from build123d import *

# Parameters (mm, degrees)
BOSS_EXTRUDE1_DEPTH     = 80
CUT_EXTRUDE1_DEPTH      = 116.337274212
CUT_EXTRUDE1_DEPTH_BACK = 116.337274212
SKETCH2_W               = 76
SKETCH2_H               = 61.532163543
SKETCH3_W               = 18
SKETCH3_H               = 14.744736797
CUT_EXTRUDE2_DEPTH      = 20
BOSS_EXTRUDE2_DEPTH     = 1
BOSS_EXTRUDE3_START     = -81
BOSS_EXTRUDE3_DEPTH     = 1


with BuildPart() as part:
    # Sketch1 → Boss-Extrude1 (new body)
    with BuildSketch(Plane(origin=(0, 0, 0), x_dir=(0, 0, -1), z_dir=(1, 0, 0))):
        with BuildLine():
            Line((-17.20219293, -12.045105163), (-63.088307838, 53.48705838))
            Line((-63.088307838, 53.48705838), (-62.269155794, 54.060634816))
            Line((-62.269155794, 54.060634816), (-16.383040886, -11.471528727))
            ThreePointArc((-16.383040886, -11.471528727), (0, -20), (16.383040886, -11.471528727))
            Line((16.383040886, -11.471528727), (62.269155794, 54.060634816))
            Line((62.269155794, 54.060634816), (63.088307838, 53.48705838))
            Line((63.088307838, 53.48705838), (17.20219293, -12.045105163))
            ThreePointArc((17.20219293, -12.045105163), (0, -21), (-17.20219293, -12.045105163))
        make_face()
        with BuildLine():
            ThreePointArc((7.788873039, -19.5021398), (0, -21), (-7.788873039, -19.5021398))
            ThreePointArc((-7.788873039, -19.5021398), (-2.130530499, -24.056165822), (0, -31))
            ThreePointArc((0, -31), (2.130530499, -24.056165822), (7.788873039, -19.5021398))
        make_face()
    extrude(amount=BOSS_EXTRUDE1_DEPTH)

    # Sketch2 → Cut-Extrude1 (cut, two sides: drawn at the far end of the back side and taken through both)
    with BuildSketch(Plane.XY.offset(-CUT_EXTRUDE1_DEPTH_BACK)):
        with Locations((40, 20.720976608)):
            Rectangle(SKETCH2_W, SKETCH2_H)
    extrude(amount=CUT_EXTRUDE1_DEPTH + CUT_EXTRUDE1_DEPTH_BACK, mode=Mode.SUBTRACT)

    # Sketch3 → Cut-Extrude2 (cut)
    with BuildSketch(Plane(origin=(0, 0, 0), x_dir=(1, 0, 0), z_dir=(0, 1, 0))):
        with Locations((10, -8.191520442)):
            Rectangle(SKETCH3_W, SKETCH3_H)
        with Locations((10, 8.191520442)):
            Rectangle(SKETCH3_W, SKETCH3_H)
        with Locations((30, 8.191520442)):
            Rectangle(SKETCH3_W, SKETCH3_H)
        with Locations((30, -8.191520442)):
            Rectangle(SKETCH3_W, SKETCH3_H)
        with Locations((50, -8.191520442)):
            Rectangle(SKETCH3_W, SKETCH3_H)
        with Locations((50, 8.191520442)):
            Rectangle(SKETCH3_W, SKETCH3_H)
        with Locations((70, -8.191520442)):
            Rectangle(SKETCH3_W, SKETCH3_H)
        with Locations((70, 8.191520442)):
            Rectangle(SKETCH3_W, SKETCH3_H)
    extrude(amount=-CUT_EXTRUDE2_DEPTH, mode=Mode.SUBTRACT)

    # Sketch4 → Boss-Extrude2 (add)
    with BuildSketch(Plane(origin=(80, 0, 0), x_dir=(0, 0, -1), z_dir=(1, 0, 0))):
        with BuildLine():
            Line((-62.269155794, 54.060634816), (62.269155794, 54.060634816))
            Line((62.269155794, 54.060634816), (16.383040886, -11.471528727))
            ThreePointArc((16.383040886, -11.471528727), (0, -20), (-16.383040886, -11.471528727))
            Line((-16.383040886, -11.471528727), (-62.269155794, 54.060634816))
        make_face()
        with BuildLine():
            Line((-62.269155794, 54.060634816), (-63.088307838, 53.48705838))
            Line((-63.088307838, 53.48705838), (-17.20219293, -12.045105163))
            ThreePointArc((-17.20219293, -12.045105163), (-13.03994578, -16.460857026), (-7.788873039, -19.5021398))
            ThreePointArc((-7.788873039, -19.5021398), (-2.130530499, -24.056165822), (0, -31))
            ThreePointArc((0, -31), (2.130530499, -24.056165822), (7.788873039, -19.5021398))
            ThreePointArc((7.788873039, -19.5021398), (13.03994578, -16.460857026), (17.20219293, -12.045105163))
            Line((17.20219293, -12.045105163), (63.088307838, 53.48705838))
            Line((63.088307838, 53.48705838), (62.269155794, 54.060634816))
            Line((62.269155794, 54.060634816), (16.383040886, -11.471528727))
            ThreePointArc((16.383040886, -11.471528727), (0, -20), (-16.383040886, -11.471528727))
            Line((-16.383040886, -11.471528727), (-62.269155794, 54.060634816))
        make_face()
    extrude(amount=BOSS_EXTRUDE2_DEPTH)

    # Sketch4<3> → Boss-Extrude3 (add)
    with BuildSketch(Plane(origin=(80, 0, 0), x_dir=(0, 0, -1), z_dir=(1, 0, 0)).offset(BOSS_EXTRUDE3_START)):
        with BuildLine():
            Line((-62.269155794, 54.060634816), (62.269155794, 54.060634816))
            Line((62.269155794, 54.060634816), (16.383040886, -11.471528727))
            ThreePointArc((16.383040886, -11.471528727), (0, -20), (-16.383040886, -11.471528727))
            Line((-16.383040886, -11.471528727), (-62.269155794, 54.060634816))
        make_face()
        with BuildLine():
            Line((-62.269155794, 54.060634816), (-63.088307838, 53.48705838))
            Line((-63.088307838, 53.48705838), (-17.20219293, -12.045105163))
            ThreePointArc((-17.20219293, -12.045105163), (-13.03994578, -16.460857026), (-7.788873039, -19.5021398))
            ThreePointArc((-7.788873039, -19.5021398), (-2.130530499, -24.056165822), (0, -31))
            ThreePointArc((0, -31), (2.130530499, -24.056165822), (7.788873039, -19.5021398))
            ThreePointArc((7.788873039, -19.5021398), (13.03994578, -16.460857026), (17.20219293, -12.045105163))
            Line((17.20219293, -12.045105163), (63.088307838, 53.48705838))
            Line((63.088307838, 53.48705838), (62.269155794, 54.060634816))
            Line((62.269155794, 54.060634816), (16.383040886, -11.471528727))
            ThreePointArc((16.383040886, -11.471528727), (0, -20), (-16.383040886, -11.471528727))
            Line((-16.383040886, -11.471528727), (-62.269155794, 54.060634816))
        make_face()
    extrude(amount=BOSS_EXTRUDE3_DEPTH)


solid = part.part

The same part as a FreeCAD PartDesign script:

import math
import FreeCAD as App
import Part
import Sketcher
Q = App.Units.Quantity


def add_polygon(sketch, points):
    """Adds a closed chain of lines whose ends are joined by coincident constraints."""
    first, n = sketch.GeometryCount, len(points)
    for a, b in zip(points, points[1:] + points[:1]):
        sketch.addGeometry(Part.LineSegment(App.Vector(*a, 0), App.Vector(*b, 0)), False)
    for i in range(n):
        sketch.addConstraint(Sketcher.Constraint("Coincident", first + i, 2, first + (i + 1) % n, 1))

doc = App.newDocument("Part")
params = doc.addObject("Spreadsheet::Sheet", "Params")
for row, (alias, value) in enumerate([
    ("sketch1_radius", "21 mm"),
    ("sketch1_radius2", "20 mm"),
    ("sketch1_length", "80 mm"),
    ("pad1_length", "80 mm"),
    ("sketch2_width", "76 mm"),
    ("sketch3_width", "18 mm"),
    ("pocket2_length", "20 mm"),
    ("sketch4_radius", "21 mm"),
    ("sketch4_length", "1 mm"),
    ("sketch4_length2", "80 mm"),
    ("pad2_length", "1 mm"),
    ("sketch5_radius", "21 mm"),
    ("sketch5_length", "1 mm"),
    ("sketch5_length2", "80 mm"),
    ("pad3_length", "1 mm"),
], start=1):
    params.set(f"A{row}", alias)
    params.set(f"B{row}", "=" + value)
    params.setAlias(f"B{row}", alias)

body = doc.addObject("PartDesign::Body", "Body")

sketch1 = body.newObject("Sketcher::SketchObject", "Sketch")
sketch1.AttachmentSupport = (doc.getObject("YZ_Plane"), [""])
sketch1.MapMode = "FlatFace"
sketch1.addGeometry([
    Part.LineSegment(App.Vector(53.5, 63.1, 0), App.Vector(-12, 17.2, 0)),
    Part.ArcOfCircle(Part.Circle(App.Vector(0, 0, 0), App.Vector(0, 0, 1), 21), math.radians(125), math.radians(158)),
    Part.ArcOfCircle(Part.Circle(App.Vector(-31, 12.4, 0), App.Vector(0, 0, 1), 12.4), math.radians(-90), math.radians(-22)),
    Part.ArcOfCircle(Part.Circle(App.Vector(-31, -12.4, 0), App.Vector(0, 0, 1), 12.4), math.radians(22), math.radians(90)),
    Part.ArcOfCircle(Part.Circle(App.Vector(0, 0, 0), App.Vector(0, 0, 1), 21), math.radians(-158), math.radians(-125)),
    Part.LineSegment(App.Vector(-12, -17.2, 0), App.Vector(53.5, -63.1, 0)),
    Part.LineSegment(App.Vector(53.5, -63.1, 0), App.Vector(54.1, -62.3, 0)),
    Part.LineSegment(App.Vector(54.1, -62.3, 0), App.Vector(-11.5, -16.4, 0)),
    Part.ArcOfCircle(Part.Circle(App.Vector(0, 0, 0), App.Vector(0, 0, 1), 20), math.radians(125), math.radians(235)),
    Part.LineSegment(App.Vector(-11.5, 16.4, 0), App.Vector(54.1, 62.3, 0)),
    Part.LineSegment(App.Vector(54.1, 62.3, 0), App.Vector(53.5, 63.1, 0)),
], False)
sketch1.addConstraint([
    Sketcher.Constraint("Tangent", 0, 2, 1, 1),
    Sketcher.Constraint("Tangent", 1, 2, 2, 2),
    Sketcher.Constraint("Tangent", 2, 1, 3, 2),
    Sketcher.Constraint("Tangent", 3, 1, 4, 1),
    Sketcher.Constraint("Tangent", 4, 2, 5, 1),
    Sketcher.Constraint("Coincident", 5, 2, 6, 1),
    Sketcher.Constraint("Coincident", 6, 2, 7, 1),
    Sketcher.Constraint("Tangent", 7, 2, 8, 2),
    Sketcher.Constraint("Tangent", 8, 1, 9, 1),
    Sketcher.Constraint("Coincident", 9, 2, 10, 1),
    Sketcher.Constraint("Coincident", 10, 2, 0, 1),
    Sketcher.Constraint("Coincident", 1, 3, -1, 1),
    Sketcher.Constraint("Coincident", 4, 3, -1, 1),
    Sketcher.Constraint("Coincident", 8, 3, -1, 1),
    Sketcher.Constraint("Equal", 2, 3),
    Sketcher.Constraint("Equal", 1, 4),
    Sketcher.Constraint("Symmetric", 6, 2, 9, 2, -1),
    Sketcher.Constraint("Symmetric", 5, 2, 10, 2, -1),
    Sketcher.Constraint("PointOnObject", 2, 1, -1),
    Sketcher.Constraint("Perpendicular", 5, 6),
    Sketcher.Constraint("Perpendicular", 6, 7),
    Sketcher.Constraint("Radius", 1, 21.0),
    Sketcher.Constraint("Radius", 8, 20.0),
    Sketcher.Constraint("Angle", 0, Q("-145 deg")),
    Sketcher.Constraint("Distance", 0, 80.0),
    Sketcher.Constraint("DistanceX", 2, 3, -1, 1, 31.0),
])
sketch1.setExpression("Constraints[21]", "Params.sketch1_radius")
sketch1.setExpression("Constraints[22]", "Params.sketch1_radius2")
sketch1.setExpression("Constraints[24]", "Params.sketch1_length")
pad1 = body.newObject("PartDesign::Pad", "Pad")
pad1.Profile = sketch1
pad1.setExpression("Length", "Params.pad1_length")

sketch2 = body.newObject("Sketcher::SketchObject", "Sketch001")
sketch2.AttachmentSupport = (doc.getObject("XY_Plane"), [""])
sketch2.MapMode = "FlatFace"
add_polygon(sketch2, [(2, 51), (2, -10), (78, -10), (78, 51)])
sketch2.addConstraint([
    Sketcher.Constraint("Vertical", 0),
    Sketcher.Constraint("Horizontal", 1),
    Sketcher.Constraint("Vertical", 2),
    Sketcher.Constraint("Horizontal", 3),
    Sketcher.Constraint("DistanceX", 1, 1, 1, 2, 76.0),
    Sketcher.Constraint("DistanceX", -1, 1, 0, 2, 2.0),
    Sketcher.Constraint("DistanceY", 0, 2, 0, 1, 61.532164),
    Sketcher.Constraint("DistanceY", -1, 1, 2, 2, 51.487058),
])
sketch2.setExpression("Constraints[8]", "Params.sketch2_width")
pocket1 = body.newObject("PartDesign::Pocket", "Pocket")
pocket1.Profile = sketch2
pocket1.Type = "ThroughAll"
pocket1.Midplane = True

sketch3 = body.newObject("Sketcher::SketchObject", "Sketch002")
sketch3.AttachmentSupport = (doc.getObject("XZ_Plane"), [""])
sketch3.MapMode = "FlatFace"
add_polygon(sketch3, [(1, 1), (1, 16), (19, 16), (19, 1)])
add_polygon(sketch3, [(1, -16), (1, -1), (19, -1), (19, -16)])
add_polygon(sketch3, [(21, -16), (21, -1), (39, -1), (39, -16)])
add_polygon(sketch3, [(21, 1), (21, 16), (39, 16), (39, 1)])
add_polygon(sketch3, [(41, 1), (41, 16), (59, 16), (59, 1)])
add_polygon(sketch3, [(41, -16), (41, -1), (59, -1), (59, -16)])
add_polygon(sketch3, [(61, 1), (61, 16), (79, 16), (79, 1)])
add_polygon(sketch3, [(61, -16), (61, -1), (79, -1), (79, -16)])
sketch3.addConstraint([
    Sketcher.Constraint("Vertical", 0),
    Sketcher.Constraint("Horizontal", 1),
    Sketcher.Constraint("Vertical", 2),
    Sketcher.Constraint("Horizontal", 3),
    Sketcher.Constraint("Vertical", 4),
    Sketcher.Constraint("Horizontal", 5),
    Sketcher.Constraint("Vertical", 6),
    Sketcher.Constraint("Horizontal", 7),
    Sketcher.Constraint("Vertical", 8),
    Sketcher.Constraint("Horizontal", 9),
    Sketcher.Constraint("Vertical", 10),
    Sketcher.Constraint("Horizontal", 11),
    Sketcher.Constraint("Vertical", 12),
    Sketcher.Constraint("Horizontal", 13),
    Sketcher.Constraint("Vertical", 14),
    Sketcher.Constraint("Horizontal", 15),
    Sketcher.Constraint("Vertical", 16),
    Sketcher.Constraint("Horizontal", 17),
    Sketcher.Constraint("Vertical", 18),
    Sketcher.Constraint("Horizontal", 19),
    Sketcher.Constraint("Vertical", 20),
    Sketcher.Constraint("Horizontal", 21),
    Sketcher.Constraint("Vertical", 22),
    Sketcher.Constraint("Horizontal", 23),
    Sketcher.Constraint("Vertical", 24),
    Sketcher.Constraint("Horizontal", 25),
    Sketcher.Constraint("Vertical", 26),
    Sketcher.Constraint("Horizontal", 27),
    Sketcher.Constraint("Vertical", 28),
    Sketcher.Constraint("Horizontal", 29),
    Sketcher.Constraint("Vertical", 30),
    Sketcher.Constraint("Horizontal", 31),
    Sketcher.Constraint("Symmetric", 3, 2, 4, 2, -1),
    Sketcher.Constraint("Symmetric", 1, 2, 6, 2, -1),
    Sketcher.Constraint("Symmetric", 11, 2, 12, 2, -1),
    Sketcher.Constraint("Symmetric", 9, 2, 14, 2, -1),
    Sketcher.Constraint("Symmetric", 19, 2, 20, 2, -1),
    Sketcher.Constraint("Symmetric", 17, 2, 22, 2, -1),
    Sketcher.Constraint("Symmetric", 27, 2, 28, 2, -1),
    Sketcher.Constraint("Symmetric", 25, 2, 30, 2, -1),
    Sketcher.Constraint("Horizontal", 5, 2, 8, 2),
    Sketcher.Constraint("Horizontal", 7, 2, 10, 2),
    Sketcher.Constraint("Horizontal", 13, 2, 16, 2),
    Sketcher.Constraint("Horizontal", 15, 2, 18, 2),
    Sketcher.Constraint("Horizontal", 17, 2, 24, 2),
    Sketcher.Constraint("Horizontal", 19, 2, 26, 2),
    Sketcher.Constraint("Equal", 7, 9),
    Sketcher.Constraint("Equal", 15, 17),
    Sketcher.Constraint("Equal", 23, 25),
    Sketcher.Constraint("DistanceX", 1, 1, 1, 2, 18.0),
    Sketcher.Constraint("DistanceX", -1, 1, 0, 2, 1.0),
    Sketcher.Constraint("DistanceX", -1, 1, 8, 2, 21.0),
    Sketcher.Constraint("DistanceX", -1, 1, 16, 2, 41.0),
    Sketcher.Constraint("DistanceX", -1, 1, 24, 2, 61.0),
    Sketcher.Constraint("DistanceY", 0, 1, 0, 2, 14.744737),
    Sketcher.Constraint("DistanceY", -1, 1, 0, 2, 15.563889),
])
sketch3.setExpression("Constraints[81]", "Params.sketch3_width")
pocket2 = body.newObject("PartDesign::Pocket", "Pocket001")
pocket2.Profile = sketch3
pocket2.setExpression("Length", "Params.pocket2_length")
pocket2.Reversed = True

sketch4 = body.newObject("Sketcher::SketchObject", "Sketch003")
sketch4.AttachmentSupport = (doc.getObject("YZ_Plane"), [""])
sketch4.MapMode = "FlatFace"
sketch4.AttachmentOffset = App.Placement(App.Vector(0, 0, 80), App.Rotation())
sketch4.addGeometry([
    Part.LineSegment(App.Vector(54.1, -62.3, 0), App.Vector(54.1, 62.3, 0)),
    Part.LineSegment(App.Vector(54.1, 62.3, 0), App.Vector(53.5, 63.1, 0)),
    Part.LineSegment(App.Vector(53.5, 63.1, 0), App.Vector(-12, 17.2, 0)),
    Part.ArcOfCircle(Part.Circle(App.Vector(0, 0, 0), App.Vector(0, 0, 1), 21), math.radians(125), math.radians(158)),
    Part.ArcOfCircle(Part.Circle(App.Vector(-31, 12.4, 0), App.Vector(0, 0, 1), 12.4), math.radians(-90), math.radians(-22)),
    Part.ArcOfCircle(Part.Circle(App.Vector(-31, -12.4, 0), App.Vector(0, 0, 1), 12.4), math.radians(22), math.radians(90)),
    Part.ArcOfCircle(Part.Circle(App.Vector(0, 0, 0), App.Vector(0, 0, 1), 21), math.radians(-158), math.radians(-125)),
    Part.LineSegment(App.Vector(-12, -17.2, 0), App.Vector(53.5, -63.1, 0)),
    Part.LineSegment(App.Vector(53.5, -63.1, 0), App.Vector(54.1, -62.3, 0)),
], False)
sketch4.addConstraint([
    Sketcher.Constraint("Coincident", 0, 2, 1, 1),
    Sketcher.Constraint("Coincident", 1, 2, 2, 1),
    Sketcher.Constraint("Tangent", 2, 2, 3, 1),
    Sketcher.Constraint("Tangent", 3, 2, 4, 2),
    Sketcher.Constraint("Tangent", 4, 1, 5, 2),
    Sketcher.Constraint("Tangent", 5, 1, 6, 1),
    Sketcher.Constraint("Tangent", 6, 2, 7, 1),
    Sketcher.Constraint("Coincident", 7, 2, 8, 1),
    Sketcher.Constraint("Coincident", 8, 2, 0, 1),
    Sketcher.Constraint("Vertical", 0),
    Sketcher.Constraint("Coincident", 3, 3, -1, 1),
    Sketcher.Constraint("Coincident", 6, 3, -1, 1),
    Sketcher.Constraint("Equal", 4, 5),
    Sketcher.Constraint("Equal", 3, 6),
    Sketcher.Constraint("Symmetric", 1, 2, 7, 2, -1),
    Sketcher.Constraint("PointOnObject", 4, 1, -1),
    Sketcher.Constraint("Perpendicular", 1, 2),
    Sketcher.Constraint("Perpendicular", 7, 8),
    Sketcher.Constraint("Radius", 3, 21.0),
    Sketcher.Constraint("Angle", 1, Q("125 deg")),
    Sketcher.Constraint("Distance", 1, 1.0),
    Sketcher.Constraint("Distance", 2, 80.0),
    Sketcher.Constraint("DistanceX", 4, 3, -1, 1, 31.0),
])
sketch4.setExpression("Constraints[18]", "Params.sketch4_radius")
sketch4.setExpression("Constraints[20]", "Params.sketch4_length")
sketch4.setExpression("Constraints[21]", "Params.sketch4_length2")
pad2 = body.newObject("PartDesign::Pad", "Pad001")
pad2.Profile = sketch4
pad2.setExpression("Length", "Params.pad2_length")

sketch5 = body.newObject("Sketcher::SketchObject", "Sketch004")
sketch5.AttachmentSupport = (doc.getObject("YZ_Plane"), [""])
sketch5.MapMode = "FlatFace"
sketch5.AttachmentOffset = App.Placement(App.Vector(0, 0, -1), App.Rotation())
sketch5.addGeometry([
    Part.LineSegment(App.Vector(54.1, -62.3, 0), App.Vector(54.1, 62.3, 0)),
    Part.LineSegment(App.Vector(54.1, 62.3, 0), App.Vector(53.5, 63.1, 0)),
    Part.LineSegment(App.Vector(53.5, 63.1, 0), App.Vector(-12, 17.2, 0)),
    Part.ArcOfCircle(Part.Circle(App.Vector(0, 0, 0), App.Vector(0, 0, 1), 21), math.radians(125), math.radians(158)),
    Part.ArcOfCircle(Part.Circle(App.Vector(-31, 12.4, 0), App.Vector(0, 0, 1), 12.4), math.radians(-90), math.radians(-22)),
    Part.ArcOfCircle(Part.Circle(App.Vector(-31, -12.4, 0), App.Vector(0, 0, 1), 12.4), math.radians(22), math.radians(90)),
    Part.ArcOfCircle(Part.Circle(App.Vector(0, 0, 0), App.Vector(0, 0, 1), 21), math.radians(-158), math.radians(-125)),
    Part.LineSegment(App.Vector(-12, -17.2, 0), App.Vector(53.5, -63.1, 0)),
    Part.LineSegment(App.Vector(53.5, -63.1, 0), App.Vector(54.1, -62.3, 0)),
], False)
sketch5.addConstraint([
    Sketcher.Constraint("Coincident", 0, 2, 1, 1),
    Sketcher.Constraint("Coincident", 1, 2, 2, 1),
    Sketcher.Constraint("Tangent", 2, 2, 3, 1),
    Sketcher.Constraint("Tangent", 3, 2, 4, 2),
    Sketcher.Constraint("Tangent", 4, 1, 5, 2),
    Sketcher.Constraint("Tangent", 5, 1, 6, 1),
    Sketcher.Constraint("Tangent", 6, 2, 7, 1),
    Sketcher.Constraint("Coincident", 7, 2, 8, 1),
    Sketcher.Constraint("Coincident", 8, 2, 0, 1),
    Sketcher.Constraint("Vertical", 0),
    Sketcher.Constraint("Coincident", 3, 3, -1, 1),
    Sketcher.Constraint("Coincident", 6, 3, -1, 1),
    Sketcher.Constraint("Equal", 4, 5),
    Sketcher.Constraint("Equal", 3, 6),
    Sketcher.Constraint("Symmetric", 1, 2, 7, 2, -1),
    Sketcher.Constraint("PointOnObject", 4, 1, -1),
    Sketcher.Constraint("Perpendicular", 1, 2),
    Sketcher.Constraint("Perpendicular", 7, 8),
    Sketcher.Constraint("Radius", 3, 21.0),
    Sketcher.Constraint("Angle", 1, Q("125 deg")),
    Sketcher.Constraint("Distance", 1, 1.0),
    Sketcher.Constraint("Distance", 2, 80.0),
    Sketcher.Constraint("DistanceX", 4, 3, -1, 1, 31.0),
])
sketch5.setExpression("Constraints[18]", "Params.sketch5_radius")
sketch5.setExpression("Constraints[20]", "Params.sketch5_length")
sketch5.setExpression("Constraints[21]", "Params.sketch5_length2")
pad3 = body.newObject("PartDesign::Pad", "Pad002")
pad3.Profile = sketch5
pad3.setExpression("Length", "Params.pad3_length")

doc.recompute()
